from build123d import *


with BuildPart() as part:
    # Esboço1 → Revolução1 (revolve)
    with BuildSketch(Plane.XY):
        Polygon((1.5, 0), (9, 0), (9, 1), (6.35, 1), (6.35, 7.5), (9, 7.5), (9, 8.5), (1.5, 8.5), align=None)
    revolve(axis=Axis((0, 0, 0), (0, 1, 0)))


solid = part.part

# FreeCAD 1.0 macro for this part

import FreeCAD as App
import Part
import Sketcher

V = App.Vector


def add_polygon(sketch, points):
    """Adds a closed chain of lines whose ends are joined by coincident constraints."""
    first, n = sketch.GeometryCount, len(points)
    for a, b in zip(points, points[1:] + points[:1]):
        sketch.addGeometry(Part.LineSegment(App.Vector(*a, 0), App.Vector(*b, 0)), False)
    for i in range(n):
        sketch.addConstraint(Sketcher.Constraint("Coincident", first + i, 2, first + (i + 1) % n, 1))

doc = App.newDocument("Part")
body = doc.addObject("PartDesign::Body", "Body")

# Sketch on XY plane
sketch1 = body.newObject("Sketcher::SketchObject", "Sketch")
sketch1.AttachmentSupport = (doc.getObject("XY_Plane"), [""])
sketch1.MapMode = "FlatFace"
add_polygon(sketch1, [(1.5, 0), (9, 0), (9, 1), (6.35, 1), (6.35, 7.5), (9, 7.5), (9, 8.5), (1.5, 8.5)])  # lines 0-7
sketch1.addConstraint([
    Sketcher.Constraint("Horizontal", 0),
    Sketcher.Constraint("Vertical", 1),
    Sketcher.Constraint("Horizontal", 2),
    Sketcher.Constraint("Vertical", 3),
    Sketcher.Constraint("Horizontal", 4),
    Sketcher.Constraint("Vertical", 5),
    Sketcher.Constraint("Horizontal", 6),
    Sketcher.Constraint("Vertical", 7),
    Sketcher.Constraint("PointOnObject", 0, 2, -1),
    Sketcher.Constraint("Vertical", 1, 2, 4, 2),
    Sketcher.Constraint("Equal", 1, 5),
    Sketcher.Constraint("DistanceY", 1, 1, 1, 2, 1.0),
    Sketcher.Constraint("DistanceX", 0, 1, 0, 2, 7.5),
    Sketcher.Constraint("DistanceY", 3, 1, 3, 2, 6.5),
    Sketcher.Constraint("DistanceX", -1, 1, 0, 2, 9.0),
    Sketcher.Constraint("DistanceX", 2, 2, 2, 1, 2.65),
])
revolution = body.newObject("PartDesign::Revolution", "Revolution")
revolution.Profile = sketch1
revolution.ReferenceAxis = (sketch1, ["V_Axis"])
revolution.Angle = 360

doc.recompute()
